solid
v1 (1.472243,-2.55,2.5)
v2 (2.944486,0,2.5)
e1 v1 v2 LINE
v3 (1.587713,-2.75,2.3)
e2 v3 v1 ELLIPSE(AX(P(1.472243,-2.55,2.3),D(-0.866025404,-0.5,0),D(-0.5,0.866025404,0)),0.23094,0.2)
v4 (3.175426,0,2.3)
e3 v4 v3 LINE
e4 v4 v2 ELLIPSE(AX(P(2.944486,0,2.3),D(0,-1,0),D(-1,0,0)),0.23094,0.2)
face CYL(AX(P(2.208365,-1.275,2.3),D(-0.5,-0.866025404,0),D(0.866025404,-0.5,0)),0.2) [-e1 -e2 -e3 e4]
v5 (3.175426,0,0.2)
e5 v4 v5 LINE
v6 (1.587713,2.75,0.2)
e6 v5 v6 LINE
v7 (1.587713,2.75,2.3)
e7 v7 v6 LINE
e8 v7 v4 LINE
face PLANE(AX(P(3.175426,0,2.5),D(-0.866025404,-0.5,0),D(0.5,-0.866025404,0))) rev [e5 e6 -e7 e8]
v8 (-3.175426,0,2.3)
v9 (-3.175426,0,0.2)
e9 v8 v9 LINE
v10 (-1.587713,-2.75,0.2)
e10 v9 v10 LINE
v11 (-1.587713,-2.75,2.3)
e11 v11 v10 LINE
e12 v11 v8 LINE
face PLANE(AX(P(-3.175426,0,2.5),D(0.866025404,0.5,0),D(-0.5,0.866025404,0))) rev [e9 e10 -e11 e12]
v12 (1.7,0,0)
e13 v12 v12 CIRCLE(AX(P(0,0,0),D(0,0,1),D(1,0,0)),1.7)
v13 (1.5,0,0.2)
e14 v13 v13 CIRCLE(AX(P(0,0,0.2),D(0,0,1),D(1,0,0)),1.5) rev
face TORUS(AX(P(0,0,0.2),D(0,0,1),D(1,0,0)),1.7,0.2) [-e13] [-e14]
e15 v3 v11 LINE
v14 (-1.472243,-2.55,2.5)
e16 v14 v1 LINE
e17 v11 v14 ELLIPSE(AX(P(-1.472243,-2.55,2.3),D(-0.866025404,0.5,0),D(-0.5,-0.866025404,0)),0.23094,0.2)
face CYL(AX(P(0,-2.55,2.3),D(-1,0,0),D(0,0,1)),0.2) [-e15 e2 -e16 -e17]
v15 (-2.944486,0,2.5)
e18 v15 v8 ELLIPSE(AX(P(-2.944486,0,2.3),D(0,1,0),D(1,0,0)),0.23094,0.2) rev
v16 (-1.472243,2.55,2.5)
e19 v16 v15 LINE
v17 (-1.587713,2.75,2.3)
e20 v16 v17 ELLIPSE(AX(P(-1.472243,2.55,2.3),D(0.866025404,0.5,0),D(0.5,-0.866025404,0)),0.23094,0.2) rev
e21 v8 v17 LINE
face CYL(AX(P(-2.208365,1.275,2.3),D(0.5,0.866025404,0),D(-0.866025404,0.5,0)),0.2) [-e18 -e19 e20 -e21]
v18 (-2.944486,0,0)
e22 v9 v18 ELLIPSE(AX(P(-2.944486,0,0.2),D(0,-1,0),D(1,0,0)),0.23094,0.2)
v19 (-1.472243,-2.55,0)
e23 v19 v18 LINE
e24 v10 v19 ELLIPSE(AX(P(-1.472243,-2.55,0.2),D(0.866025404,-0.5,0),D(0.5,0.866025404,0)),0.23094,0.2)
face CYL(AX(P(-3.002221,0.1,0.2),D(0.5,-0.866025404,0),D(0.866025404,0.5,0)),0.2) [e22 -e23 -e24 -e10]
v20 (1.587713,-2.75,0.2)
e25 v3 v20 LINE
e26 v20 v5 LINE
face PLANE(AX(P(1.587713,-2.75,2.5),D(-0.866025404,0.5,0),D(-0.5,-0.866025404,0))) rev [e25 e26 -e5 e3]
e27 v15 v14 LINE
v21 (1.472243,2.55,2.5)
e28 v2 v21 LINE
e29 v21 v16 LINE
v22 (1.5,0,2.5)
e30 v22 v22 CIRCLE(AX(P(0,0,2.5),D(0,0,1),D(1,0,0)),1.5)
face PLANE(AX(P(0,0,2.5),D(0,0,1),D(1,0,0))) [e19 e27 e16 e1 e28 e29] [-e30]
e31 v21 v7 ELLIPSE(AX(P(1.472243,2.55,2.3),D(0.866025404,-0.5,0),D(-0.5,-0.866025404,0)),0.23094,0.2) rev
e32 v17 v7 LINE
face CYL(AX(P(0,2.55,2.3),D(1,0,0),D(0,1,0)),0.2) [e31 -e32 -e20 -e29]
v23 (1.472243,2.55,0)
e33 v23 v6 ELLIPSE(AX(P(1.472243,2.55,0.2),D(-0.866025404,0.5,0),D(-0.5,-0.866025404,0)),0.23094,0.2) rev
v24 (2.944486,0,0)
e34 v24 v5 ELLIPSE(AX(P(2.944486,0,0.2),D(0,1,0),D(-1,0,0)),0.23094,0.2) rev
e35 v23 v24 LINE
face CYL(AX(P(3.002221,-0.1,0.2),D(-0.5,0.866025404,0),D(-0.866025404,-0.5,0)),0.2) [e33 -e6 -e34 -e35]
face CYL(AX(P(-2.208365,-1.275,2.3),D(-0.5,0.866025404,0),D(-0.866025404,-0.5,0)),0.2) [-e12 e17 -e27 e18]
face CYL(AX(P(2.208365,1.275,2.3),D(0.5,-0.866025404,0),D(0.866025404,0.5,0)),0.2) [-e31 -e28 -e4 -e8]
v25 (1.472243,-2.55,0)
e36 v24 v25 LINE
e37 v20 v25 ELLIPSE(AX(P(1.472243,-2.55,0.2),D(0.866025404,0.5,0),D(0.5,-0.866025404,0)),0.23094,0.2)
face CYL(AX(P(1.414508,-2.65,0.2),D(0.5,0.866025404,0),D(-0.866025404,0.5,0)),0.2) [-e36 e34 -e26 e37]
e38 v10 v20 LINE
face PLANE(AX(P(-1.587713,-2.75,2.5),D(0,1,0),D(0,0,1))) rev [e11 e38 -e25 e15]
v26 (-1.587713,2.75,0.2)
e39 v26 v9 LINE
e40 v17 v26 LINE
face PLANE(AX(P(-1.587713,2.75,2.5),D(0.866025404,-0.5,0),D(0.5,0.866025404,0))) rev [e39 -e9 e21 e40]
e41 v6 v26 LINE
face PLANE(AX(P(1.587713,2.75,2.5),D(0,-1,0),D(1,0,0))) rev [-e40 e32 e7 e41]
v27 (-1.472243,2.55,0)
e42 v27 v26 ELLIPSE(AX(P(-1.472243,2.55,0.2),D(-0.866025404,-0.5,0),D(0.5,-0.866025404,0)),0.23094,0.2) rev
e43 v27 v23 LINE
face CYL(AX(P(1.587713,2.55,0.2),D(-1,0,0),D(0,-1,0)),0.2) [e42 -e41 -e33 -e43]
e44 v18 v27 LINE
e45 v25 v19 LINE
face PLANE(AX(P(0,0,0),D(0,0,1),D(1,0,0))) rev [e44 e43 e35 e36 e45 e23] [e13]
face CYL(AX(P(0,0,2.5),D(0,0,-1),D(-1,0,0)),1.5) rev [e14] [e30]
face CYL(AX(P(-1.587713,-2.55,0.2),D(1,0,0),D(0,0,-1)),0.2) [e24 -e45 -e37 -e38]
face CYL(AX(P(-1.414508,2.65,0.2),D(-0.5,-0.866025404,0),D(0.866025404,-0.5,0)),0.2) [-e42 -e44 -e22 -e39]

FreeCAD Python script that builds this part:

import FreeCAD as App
import Part
import Sketcher

V = App.Vector
Q = App.Units.Quantity


def edges_at(feature, points):
    """Names of the edges that pass closest to the given points."""
    edges = feature.Shape.Edges
    near = lambda p: min(range(len(edges)), key=lambda i: edges[i].distToShape(Part.Vertex(*p))[0])
    return sorted({f"Edge{near(p) + 1}" for p in points})


def add_polygon(sketch, points):
    """Adds a closed chain of lines whose ends are joined by coincident constraints."""
    first, n = sketch.GeometryCount, len(points)
    for a, b in zip(points, points[1:] + points[:1]):
        sketch.addGeometry(Part.LineSegment(App.Vector(*a, 0), App.Vector(*b, 0)), False)
    for i in range(n):
        sketch.addConstraint(Sketcher.Constraint("Coincident", first + i, 2, first + (i + 1) % n, 1))

doc = App.newDocument("Part")
body = doc.addObject("PartDesign::Body", "Body")

# Sketch on XY plane
sketch1 = doc.addObject("Sketcher::SketchObject", "Sketch")
body.addObject(sketch1)
sketch1.AttachmentSupport = (doc.XY_Plane, [""])
sketch1.MapMode = "FlatFace"
add_polygon(sketch1, [(1.6, -2.8), (3.2, 0), (1.6, 2.8), (-1.6, 2.8), (-3.2, 0), (-1.6, -2.8)])  # lines 0-5
sketch1.addGeometry(Part.Circle(V(0, 0, 0), V(0, 0, 1), 1.5), False)  # 6
sketch1.addConstraint([
    Sketcher.Constraint("Horizontal", 2),
    Sketcher.Constraint("Horizontal", 5),
    Sketcher.Constraint("Coincident", 6, 3, -1, 1),
    Sketcher.Constraint("Symmetric", 0, 2, 3, 2, -1, 1),
    Sketcher.Constraint("Symmetric", 1, 2, 4, 2, -1, 1),
    Sketcher.Constraint("PointOnObject", 0, 2, -1),
    Sketcher.Constraint("Parallel", 0, 3),
    Sketcher.Constraint("Vertical", 2, 2, 4, 2),
    Sketcher.Constraint("Diameter", 6, 3.0),
    Sketcher.Constraint("Angle", 0, Q("60 deg")),
    Sketcher.Constraint("DistanceY", 4, 2, 2, 2, 5.5),
    Sketcher.Constraint("DistanceX", 2, 2, 2, 1, 3.175426),
])
pad1 = doc.addObject("PartDesign::Pad", "Pad")
body.addObject(pad1)
pad1.Profile = sketch1
pad1.Length = 2.5
doc.recompute()

fillet = doc.addObject("PartDesign::Fillet", "Fillet")
body.addObject(fillet)
fillet.Base = (pad1, edges_at(pad1, [
    (2.382, 1.375, 2.5),
    (0, 2.75, 2.5),
    (-1.5, 0, 0),
    (-2.382, 1.375, 2.5),
    (-2.382, -1.375, 2.5),
    (0, -2.75, 2.5),
    (-2.382, -1.375, 0),
    (-2.382, 1.375, 0),
    (0, 2.75, 0),
    (2.382, 1.375, 0),
    (2.382, -1.375, 0),
    (0, -2.75, 0),
    (2.382, -1.375, 2.5),
]))
fillet.Radius = 0.2

doc.recompute()
